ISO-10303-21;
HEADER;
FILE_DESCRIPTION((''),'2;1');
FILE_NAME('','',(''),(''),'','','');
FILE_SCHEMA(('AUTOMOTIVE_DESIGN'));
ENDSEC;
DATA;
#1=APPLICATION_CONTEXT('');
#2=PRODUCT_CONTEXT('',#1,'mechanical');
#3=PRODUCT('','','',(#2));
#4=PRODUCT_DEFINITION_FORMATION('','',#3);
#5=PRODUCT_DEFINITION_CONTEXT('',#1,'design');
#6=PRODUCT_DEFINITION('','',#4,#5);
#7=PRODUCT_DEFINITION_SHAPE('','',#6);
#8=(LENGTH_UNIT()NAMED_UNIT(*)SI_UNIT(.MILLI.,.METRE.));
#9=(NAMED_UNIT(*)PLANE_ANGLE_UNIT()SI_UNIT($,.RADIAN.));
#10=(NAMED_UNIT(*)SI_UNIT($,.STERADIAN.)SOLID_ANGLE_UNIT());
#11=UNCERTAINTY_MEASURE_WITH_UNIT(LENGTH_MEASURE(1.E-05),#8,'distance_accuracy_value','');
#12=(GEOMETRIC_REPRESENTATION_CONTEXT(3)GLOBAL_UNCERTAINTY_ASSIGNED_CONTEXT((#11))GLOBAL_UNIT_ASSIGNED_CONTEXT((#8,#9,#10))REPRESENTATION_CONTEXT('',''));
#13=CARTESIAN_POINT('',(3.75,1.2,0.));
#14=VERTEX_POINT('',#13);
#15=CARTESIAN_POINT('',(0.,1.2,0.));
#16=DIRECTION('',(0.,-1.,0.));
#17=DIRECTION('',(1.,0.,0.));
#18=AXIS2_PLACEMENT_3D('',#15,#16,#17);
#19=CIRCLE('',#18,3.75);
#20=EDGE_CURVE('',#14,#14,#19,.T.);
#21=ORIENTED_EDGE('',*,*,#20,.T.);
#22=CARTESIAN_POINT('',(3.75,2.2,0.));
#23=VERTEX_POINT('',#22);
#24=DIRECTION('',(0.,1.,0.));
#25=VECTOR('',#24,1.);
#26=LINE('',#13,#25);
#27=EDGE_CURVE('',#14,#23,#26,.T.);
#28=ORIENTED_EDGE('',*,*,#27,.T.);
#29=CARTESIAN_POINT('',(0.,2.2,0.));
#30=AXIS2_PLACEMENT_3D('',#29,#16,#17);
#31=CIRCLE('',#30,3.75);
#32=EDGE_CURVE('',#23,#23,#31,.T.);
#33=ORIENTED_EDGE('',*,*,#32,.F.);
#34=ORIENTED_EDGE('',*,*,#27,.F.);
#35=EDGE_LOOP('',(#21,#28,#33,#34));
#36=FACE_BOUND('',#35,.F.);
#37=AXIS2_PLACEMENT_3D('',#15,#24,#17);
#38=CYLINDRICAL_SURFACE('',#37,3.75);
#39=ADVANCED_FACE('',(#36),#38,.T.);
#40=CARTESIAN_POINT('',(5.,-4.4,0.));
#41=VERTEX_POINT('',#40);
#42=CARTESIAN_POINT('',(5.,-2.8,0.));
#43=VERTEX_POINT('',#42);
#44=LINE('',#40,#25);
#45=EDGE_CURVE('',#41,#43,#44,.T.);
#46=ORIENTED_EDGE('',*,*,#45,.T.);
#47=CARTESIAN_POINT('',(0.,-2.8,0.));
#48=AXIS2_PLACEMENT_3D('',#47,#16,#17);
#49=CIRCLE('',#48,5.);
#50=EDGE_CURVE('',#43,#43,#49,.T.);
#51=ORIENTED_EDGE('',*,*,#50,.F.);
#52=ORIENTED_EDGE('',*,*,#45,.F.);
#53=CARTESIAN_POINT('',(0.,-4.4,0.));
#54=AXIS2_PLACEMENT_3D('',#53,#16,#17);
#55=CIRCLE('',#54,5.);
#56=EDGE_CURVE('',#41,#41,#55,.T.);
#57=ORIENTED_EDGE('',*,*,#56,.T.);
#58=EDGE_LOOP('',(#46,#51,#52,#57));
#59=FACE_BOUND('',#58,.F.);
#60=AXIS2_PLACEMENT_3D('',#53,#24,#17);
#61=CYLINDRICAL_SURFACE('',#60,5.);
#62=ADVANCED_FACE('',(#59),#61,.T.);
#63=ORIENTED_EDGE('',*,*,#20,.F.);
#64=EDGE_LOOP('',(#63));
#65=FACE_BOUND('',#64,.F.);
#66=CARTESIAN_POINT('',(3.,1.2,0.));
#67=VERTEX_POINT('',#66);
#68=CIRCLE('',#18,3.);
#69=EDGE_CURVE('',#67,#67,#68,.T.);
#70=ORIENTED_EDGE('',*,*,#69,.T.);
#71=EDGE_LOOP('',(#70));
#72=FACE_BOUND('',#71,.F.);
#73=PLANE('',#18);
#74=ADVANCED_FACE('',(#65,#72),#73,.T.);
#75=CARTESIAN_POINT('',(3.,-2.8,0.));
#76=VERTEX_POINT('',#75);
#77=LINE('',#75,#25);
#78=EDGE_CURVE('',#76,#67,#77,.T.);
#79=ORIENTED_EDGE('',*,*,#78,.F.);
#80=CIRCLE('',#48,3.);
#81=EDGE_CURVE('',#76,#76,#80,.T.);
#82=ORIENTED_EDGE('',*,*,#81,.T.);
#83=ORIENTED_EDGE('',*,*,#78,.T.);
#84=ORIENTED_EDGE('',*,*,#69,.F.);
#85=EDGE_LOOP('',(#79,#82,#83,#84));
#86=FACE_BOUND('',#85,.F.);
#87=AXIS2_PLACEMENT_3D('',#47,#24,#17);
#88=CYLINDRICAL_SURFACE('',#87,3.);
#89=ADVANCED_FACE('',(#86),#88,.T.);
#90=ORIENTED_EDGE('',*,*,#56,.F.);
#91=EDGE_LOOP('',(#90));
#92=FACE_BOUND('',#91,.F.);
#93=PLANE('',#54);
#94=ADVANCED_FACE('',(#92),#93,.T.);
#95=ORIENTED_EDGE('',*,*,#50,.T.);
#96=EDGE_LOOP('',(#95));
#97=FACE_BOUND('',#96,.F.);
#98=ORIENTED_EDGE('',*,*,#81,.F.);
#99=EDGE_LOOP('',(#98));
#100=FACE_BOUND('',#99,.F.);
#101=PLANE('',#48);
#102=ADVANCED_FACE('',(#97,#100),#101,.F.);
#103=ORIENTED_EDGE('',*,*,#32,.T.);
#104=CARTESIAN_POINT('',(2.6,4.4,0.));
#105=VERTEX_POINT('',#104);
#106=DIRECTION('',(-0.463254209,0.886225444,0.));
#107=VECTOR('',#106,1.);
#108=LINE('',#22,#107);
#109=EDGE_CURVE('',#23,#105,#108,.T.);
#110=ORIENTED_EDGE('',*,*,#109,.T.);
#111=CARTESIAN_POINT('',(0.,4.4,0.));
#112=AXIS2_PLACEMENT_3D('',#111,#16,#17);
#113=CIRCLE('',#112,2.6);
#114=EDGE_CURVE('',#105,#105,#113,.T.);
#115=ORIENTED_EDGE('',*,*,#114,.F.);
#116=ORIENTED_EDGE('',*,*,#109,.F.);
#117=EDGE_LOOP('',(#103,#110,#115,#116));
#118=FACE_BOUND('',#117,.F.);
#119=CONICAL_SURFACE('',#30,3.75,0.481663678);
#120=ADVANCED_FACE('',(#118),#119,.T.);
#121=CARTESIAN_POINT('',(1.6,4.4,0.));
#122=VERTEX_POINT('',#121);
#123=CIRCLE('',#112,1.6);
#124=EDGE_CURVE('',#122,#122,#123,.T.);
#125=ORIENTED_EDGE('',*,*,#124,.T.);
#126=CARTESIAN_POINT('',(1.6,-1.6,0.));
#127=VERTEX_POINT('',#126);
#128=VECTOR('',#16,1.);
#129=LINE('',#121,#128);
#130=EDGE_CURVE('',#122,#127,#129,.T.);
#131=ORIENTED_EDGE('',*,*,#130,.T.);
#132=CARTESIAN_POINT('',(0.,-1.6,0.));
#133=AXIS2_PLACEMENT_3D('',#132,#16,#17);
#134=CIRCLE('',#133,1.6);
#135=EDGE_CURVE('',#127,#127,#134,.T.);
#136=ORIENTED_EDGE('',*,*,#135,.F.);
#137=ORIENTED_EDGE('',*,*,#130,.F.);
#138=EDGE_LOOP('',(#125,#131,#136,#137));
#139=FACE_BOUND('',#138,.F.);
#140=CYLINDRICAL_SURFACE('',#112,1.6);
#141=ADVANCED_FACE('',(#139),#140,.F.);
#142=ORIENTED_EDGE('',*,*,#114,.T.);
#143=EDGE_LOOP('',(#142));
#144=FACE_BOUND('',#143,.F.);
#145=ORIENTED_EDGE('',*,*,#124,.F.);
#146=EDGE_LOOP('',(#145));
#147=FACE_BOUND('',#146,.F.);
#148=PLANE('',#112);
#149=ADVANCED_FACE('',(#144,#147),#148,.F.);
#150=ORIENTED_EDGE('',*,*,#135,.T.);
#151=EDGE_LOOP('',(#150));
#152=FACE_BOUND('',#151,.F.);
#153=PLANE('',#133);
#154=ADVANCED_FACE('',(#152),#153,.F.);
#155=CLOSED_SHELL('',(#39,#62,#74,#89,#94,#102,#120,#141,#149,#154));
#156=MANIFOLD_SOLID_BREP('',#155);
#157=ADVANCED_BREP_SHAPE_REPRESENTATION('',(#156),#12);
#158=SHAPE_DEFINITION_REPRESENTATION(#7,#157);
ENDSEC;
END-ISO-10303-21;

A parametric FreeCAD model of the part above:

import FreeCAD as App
import Part
import Sketcher

doc = App.newDocument("Part")
body = doc.addObject("PartDesign::Body", "Body")

sketch1 = body.newObject("Sketcher::SketchObject", "Sketch")
sketch1.AttachmentSupport = (doc.getObject("XY_Plane"), [""])
sketch1.MapMode = "FlatFace"
sketch1.addGeometry([
    Part.LineSegment(App.Vector(0, -4.4, 0), App.Vector(5, -4.4, 0)),
    Part.LineSegment(App.Vector(5, -4.4, 0), App.Vector(5, -2.8, 0)),
    Part.LineSegment(App.Vector(5, -2.8, 0), App.Vector(3, -2.8, 0)),
    Part.LineSegment(App.Vector(3, -2.8, 0), App.Vector(3, 1.2, 0)),
    Part.LineSegment(App.Vector(3, 1.2, 0), App.Vector(3.8, 1.2, 0)),
    Part.LineSegment(App.Vector(3.8, 1.2, 0), App.Vector(3.8, 2.2, 0)),
    Part.LineSegment(App.Vector(3.8, 2.2, 0), App.Vector(2.6, 4.4, 0)),
    Part.LineSegment(App.Vector(2.6, 4.4, 0), App.Vector(1.6, 4.4, 0)),
    Part.LineSegment(App.Vector(1.6, 4.4, 0), App.Vector(1.6, -1.6, 0)),
    Part.LineSegment(App.Vector(1.6, -1.6, 0), App.Vector(0, -1.6, 0)),
    Part.LineSegment(App.Vector(0, -1.6, 0), App.Vector(0, -4.4, 0)),
], False)
sketch1.addConstraint([
    Sketcher.Constraint("Coincident", 0, 2, 1, 1),
    Sketcher.Constraint("Coincident", 1, 2, 2, 1),
    Sketcher.Constraint("Coincident", 2, 2, 3, 1),
    Sketcher.Constraint("Coincident", 3, 2, 4, 1),
    Sketcher.Constraint("Coincident", 4, 2, 5, 1),
    Sketcher.Constraint("Coincident", 5, 2, 6, 1),
    Sketcher.Constraint("Coincident", 6, 2, 7, 1),
    Sketcher.Constraint("Coincident", 7, 2, 8, 1),
    Sketcher.Constraint("Coincident", 8, 2, 9, 1),
    Sketcher.Constraint("Coincident", 9, 2, 10, 1),
    Sketcher.Constraint("Coincident", 10, 2, 0, 1),
    Sketcher.Constraint("Horizontal", 0),
    Sketcher.Constraint("Vertical", 1),
    Sketcher.Constraint("Horizontal", 2),
    Sketcher.Constraint("Vertical", 3),
    Sketcher.Constraint("Horizontal", 4),
    Sketcher.Constraint("Vertical", 5),
    Sketcher.Constraint("Horizontal", 7),
    Sketcher.Constraint("Vertical", 8),
    Sketcher.Constraint("Horizontal", 9),
    Sketcher.Constraint("Vertical", 10),
    Sketcher.Constraint("PointOnObject", 9, 2, -2),
    Sketcher.Constraint("Equal", 9, 1),
    Sketcher.Constraint("Equal", 7, 5),
    Sketcher.Constraint("DistanceX", 0, 1, 0, 2, 5.0),
    Sketcher.Constraint("DistanceX", 2, 2, 2, 1, 2.0),
    Sketcher.Constraint("DistanceX", 7, 2, 7, 1, 1.0),
    Sketcher.Constraint("DistanceY", 3, 1, 3, 2, 4.0),
    Sketcher.Constraint("DistanceY", 8, 2, 8, 1, 6.0),
    Sketcher.Constraint("DistanceX", 9, 2, 9, 1, 1.6),
    Sketcher.Constraint("DistanceY", 10, 2, 10, 1, 2.8),
    Sketcher.Constraint("DistanceX", 4, 1, 4, 2, 0.75),
    Sketcher.Constraint("DistanceY", 0, 2, -1, 1, 4.4),
])
revolution = body.newObject("PartDesign::Revolution", "Revolution")
revolution.Profile = sketch1
revolution.ReferenceAxis = (sketch1, ["V_Axis"])
revolution.Angle = 360

doc.recompute()
